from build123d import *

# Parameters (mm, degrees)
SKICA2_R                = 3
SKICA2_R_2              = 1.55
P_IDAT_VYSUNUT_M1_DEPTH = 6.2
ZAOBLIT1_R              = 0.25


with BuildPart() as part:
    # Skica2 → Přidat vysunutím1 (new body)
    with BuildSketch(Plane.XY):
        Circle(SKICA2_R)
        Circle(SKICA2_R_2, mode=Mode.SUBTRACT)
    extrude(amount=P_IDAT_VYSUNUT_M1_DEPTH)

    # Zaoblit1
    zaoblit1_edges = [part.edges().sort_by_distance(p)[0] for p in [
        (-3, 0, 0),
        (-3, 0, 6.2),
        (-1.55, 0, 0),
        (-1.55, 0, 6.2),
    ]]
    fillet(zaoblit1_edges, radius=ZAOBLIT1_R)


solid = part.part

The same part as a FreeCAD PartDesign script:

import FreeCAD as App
import Part
import Sketcher


def edges_at(feature, points):
    """Names of the edges that pass closest to the given points."""
    edges = feature.Shape.Edges
    near = lambda p: min(range(len(edges)), key=lambda i: edges[i].distToShape(Part.Vertex(*p))[0])
    return sorted({f"Edge{near(p) + 1}" for p in points})

doc = App.newDocument("Part")
body = doc.addObject("PartDesign::Body", "Body")

# Sketch on XY plane
sketch1 = doc.addObject("Sketcher::SketchObject", "Sketch")
body.addObject(sketch1)
sketch1.AttachmentSupport = (doc.XY_Plane, [""])
sketch1.MapMode = "FlatFace"
sketch1.addGeometry([
    Part.Circle(App.Vector(0, 0, 0), App.Vector(0, 0, 1), 3),
    Part.Circle(App.Vector(0, 0, 0), App.Vector(0, 0, 1), 1.6),
], False)
sketch1.addConstraint([
    Sketcher.Constraint("Coincident", 0, 3, -1, 1),
    Sketcher.Constraint("Coincident", 1, 3, -1, 1),
    Sketcher.Constraint("Diameter", 0, 6.0),
    Sketcher.Constraint("Diameter", 1, 3.1),
])
pad1 = doc.addObject("PartDesign::Pad", "Pad")
body.addObject(pad1)
pad1.Profile = sketch1
pad1.Length = 6.2
doc.recompute()

fillet = doc.addObject("PartDesign::Fillet", "Fillet")
body.addObject(fillet)
fillet.Base = (pad1, edges_at(pad1, [
    (-3, 0, 0),
    (-3, 0, 6.2),
    (-1.55, 0, 0),
    (-1.55, 0, 6.2),
]))
fillet.Radius = 0.25

doc.recompute()
